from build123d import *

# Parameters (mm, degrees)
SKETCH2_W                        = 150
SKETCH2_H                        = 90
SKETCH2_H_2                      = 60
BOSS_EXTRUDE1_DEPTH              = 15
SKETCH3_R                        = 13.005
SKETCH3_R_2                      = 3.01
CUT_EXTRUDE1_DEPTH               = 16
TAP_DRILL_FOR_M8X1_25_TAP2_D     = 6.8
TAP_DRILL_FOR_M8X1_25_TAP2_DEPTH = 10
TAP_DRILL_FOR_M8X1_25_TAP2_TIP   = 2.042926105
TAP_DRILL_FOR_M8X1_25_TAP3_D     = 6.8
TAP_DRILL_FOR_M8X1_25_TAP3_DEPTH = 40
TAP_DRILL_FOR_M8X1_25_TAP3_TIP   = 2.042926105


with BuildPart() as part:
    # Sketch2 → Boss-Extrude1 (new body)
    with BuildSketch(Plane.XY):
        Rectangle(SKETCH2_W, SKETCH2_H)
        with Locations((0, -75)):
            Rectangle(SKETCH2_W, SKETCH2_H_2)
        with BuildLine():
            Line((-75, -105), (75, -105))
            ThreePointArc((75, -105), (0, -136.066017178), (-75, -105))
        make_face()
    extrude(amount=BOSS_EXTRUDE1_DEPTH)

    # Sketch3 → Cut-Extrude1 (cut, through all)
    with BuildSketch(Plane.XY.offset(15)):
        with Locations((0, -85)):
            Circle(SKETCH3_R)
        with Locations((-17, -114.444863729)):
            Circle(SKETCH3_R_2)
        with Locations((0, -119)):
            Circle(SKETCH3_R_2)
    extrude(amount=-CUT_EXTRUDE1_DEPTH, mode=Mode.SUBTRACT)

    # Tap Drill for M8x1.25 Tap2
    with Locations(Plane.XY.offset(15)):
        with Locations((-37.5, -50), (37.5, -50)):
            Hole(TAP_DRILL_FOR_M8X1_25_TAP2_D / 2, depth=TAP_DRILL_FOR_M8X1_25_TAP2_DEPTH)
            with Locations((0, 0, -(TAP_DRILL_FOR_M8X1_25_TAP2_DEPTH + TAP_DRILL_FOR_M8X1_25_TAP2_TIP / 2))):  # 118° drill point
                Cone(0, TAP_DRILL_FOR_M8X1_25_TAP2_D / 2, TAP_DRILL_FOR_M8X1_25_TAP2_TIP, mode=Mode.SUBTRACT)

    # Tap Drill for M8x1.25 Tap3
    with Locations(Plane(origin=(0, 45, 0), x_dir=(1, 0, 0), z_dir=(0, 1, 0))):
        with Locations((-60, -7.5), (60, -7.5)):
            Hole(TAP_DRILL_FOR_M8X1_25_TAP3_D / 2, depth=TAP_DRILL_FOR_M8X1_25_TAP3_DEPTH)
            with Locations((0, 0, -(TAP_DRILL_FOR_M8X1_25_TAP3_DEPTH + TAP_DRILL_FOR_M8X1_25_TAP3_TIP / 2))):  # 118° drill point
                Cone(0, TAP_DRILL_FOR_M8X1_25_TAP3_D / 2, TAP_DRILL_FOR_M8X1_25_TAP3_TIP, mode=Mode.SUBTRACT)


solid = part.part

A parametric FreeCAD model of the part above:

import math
import FreeCAD as App
import Part
import Sketcher
from FreeCAD import Vector
Q = App.Units.Quantity

doc = App.newDocument("Part")
body = doc.addObject("PartDesign::Body", "Body")

sketch1 = body.newObject("Sketcher::SketchObject", "Sketch")
sketch1.AttachmentSupport = (doc.getObject("XY_Plane"), [""])
sketch1.MapMode = "FlatFace"
sketch1.addGeometry([
    Part.LineSegment(Vector(-75, 45, 0), Vector(-75, -105, 0)),
    Part.ArcOfCircle(Part.Circle(Vector(0, -30, 0), Vector(0, 0, 1), 106), math.radians(-135), math.radians(-45)),
    Part.LineSegment(Vector(75, -105, 0), Vector(75, 45, 0)),
    Part.LineSegment(Vector(75, 45, 0), Vector(-75, 45, 0)),
], False)
sketch1.addConstraint([
    Sketcher.Constraint("Coincident", 0, 2, 1, 1),
    Sketcher.Constraint("Coincident", 1, 2, 2, 1),
    Sketcher.Constraint("Coincident", 2, 2, 3, 1),
    Sketcher.Constraint("Coincident", 3, 2, 0, 1),
    Sketcher.Constraint("Vertical", 0),
    Sketcher.Constraint("Vertical", 2),
    Sketcher.Constraint("Horizontal", 3),
    Sketcher.Constraint("Symmetric", 0, 2, 1, 2, -2),
    Sketcher.Constraint("Equal", 3, 0),
    Sketcher.Constraint("DistanceX", 3, 2, 3, 1, Q("150 mm")),
    Sketcher.Constraint("DistanceY", 1, 3, -1, 1, Q("30 mm")),
    Sketcher.Constraint("DistanceY", 0, 2, -1, 1, Q("105 mm")),
])
pad1 = body.newObject("PartDesign::Pad", "Pad")
pad1.Profile = sketch1
pad1.Length = 15

sketch2 = body.newObject("Sketcher::SketchObject", "Sketch001")
sketch2.AttachmentSupport = (doc.getObject("XY_Plane"), [""])
sketch2.MapMode = "FlatFace"
sketch2.AttachmentOffset = App.Placement(Vector(0, 0, 15), App.Rotation())
sketch2.addGeometry([
    Part.Circle(Vector(0, -85, 0), Vector(0, 0, 1), 13),
    Part.Circle(Vector(-17, -114.4, 0), Vector(0, 0, 1), 3),
    Part.Circle(Vector(0, -119, 0), Vector(0, 0, 1), 3),
], False)
sketch2.addConstraint([
    Sketcher.Constraint("Equal", 1, 2),
    Sketcher.Constraint("PointOnObject", 0, 3, -2),
    Sketcher.Constraint("PointOnObject", 2, 3, -2),
    Sketcher.Constraint("Diameter", 0, Q("26.01 mm")),
    Sketcher.Constraint("Diameter", 1, Q("6.02 mm")),
    Sketcher.Constraint("DistanceY", 0, 3, -1, 1, Q("85 mm")),
    Sketcher.Constraint("DistanceX", 1, 3, -1, 1, Q("17 mm")),
    Sketcher.Constraint("DistanceY", 2, 3, -1, 1, Q("119 mm")),
    Sketcher.Constraint("DistanceY", 1, 3, -1, 1, Q("114.444864 mm")),
])
pocket1 = body.newObject("PartDesign::Pocket", "Pocket")
pocket1.Profile = sketch2
pocket1.Type = "ThroughAll"

sketch3 = body.newObject("Sketcher::SketchObject", "Sketch002")
sketch3.AttachmentSupport = (doc.getObject("XY_Plane"), [""])
sketch3.MapMode = "FlatFace"
sketch3.AttachmentOffset = App.Placement(Vector(0, 0, 15), App.Rotation())
sketch3.addGeometry([
    Part.Circle(Vector(-37.5, -50, 0), Vector(0, 0, 1), 3.4),
    Part.Circle(Vector(37.5, -50, 0), Vector(0, 0, 1), 3.4),
], False)
sketch3.addConstraint([
    Sketcher.Constraint("Equal", 0, 1),
    Sketcher.Constraint("Symmetric", 0, 3, 1, 3, -2),
    Sketcher.Constraint("Diameter", 0, Q("6.8 mm")),
    Sketcher.Constraint("DistanceY", 0, 3, -1, 1, Q("50 mm")),
    Sketcher.Constraint("DistanceX", 0, 3, 1, 3, Q("75 mm")),
])
doc.recompute()
hole = body.newObject("PartDesign::Hole", "Hole")
hole.Profile = sketch3
hole.ThreadType = "None"
hole.Diameter = 6.8
hole.DepthType = "Dimension"
hole.Depth = 10
hole.DrillPoint = "Angled"
hole.DrillPointAngle = 118

sketch4 = body.newObject("Sketcher::SketchObject", "Sketch003")
sketch4.AttachmentSupport = (doc.getObject("XZ_Plane"), [""])
sketch4.MapMode = "FlatFace"
sketch4.AttachmentOffset = App.Placement(Vector(0, 0, -45), App.Rotation())
sketch4.addGeometry([
    Part.Circle(Vector(-60, 7.5, 0), Vector(0, 0, 1), 3.4),
    Part.Circle(Vector(60, 7.5, 0), Vector(0, 0, 1), 3.4),
], False)
sketch4.addConstraint([
    Sketcher.Constraint("Equal", 0, 1),
    Sketcher.Constraint("Symmetric", 0, 3, 1, 3, -2),
    Sketcher.Constraint("Diameter", 0, Q("6.8 mm")),
    Sketcher.Constraint("DistanceX", 0, 3, -1, 1, Q("60 mm")),
    Sketcher.Constraint("DistanceY", -1, 1, 0, 3, Q("7.5 mm")),
])
doc.recompute()
hole2 = body.newObject("PartDesign::Hole", "Hole001")
hole2.Profile = sketch4
hole2.ThreadType = "None"
hole2.Diameter = 6.8
hole2.DepthType = "Dimension"
hole2.Depth = 40
hole2.DrillPoint = "Angled"
hole2.DrillPointAngle = 118
hole2.Reversed = True

doc.recompute()
